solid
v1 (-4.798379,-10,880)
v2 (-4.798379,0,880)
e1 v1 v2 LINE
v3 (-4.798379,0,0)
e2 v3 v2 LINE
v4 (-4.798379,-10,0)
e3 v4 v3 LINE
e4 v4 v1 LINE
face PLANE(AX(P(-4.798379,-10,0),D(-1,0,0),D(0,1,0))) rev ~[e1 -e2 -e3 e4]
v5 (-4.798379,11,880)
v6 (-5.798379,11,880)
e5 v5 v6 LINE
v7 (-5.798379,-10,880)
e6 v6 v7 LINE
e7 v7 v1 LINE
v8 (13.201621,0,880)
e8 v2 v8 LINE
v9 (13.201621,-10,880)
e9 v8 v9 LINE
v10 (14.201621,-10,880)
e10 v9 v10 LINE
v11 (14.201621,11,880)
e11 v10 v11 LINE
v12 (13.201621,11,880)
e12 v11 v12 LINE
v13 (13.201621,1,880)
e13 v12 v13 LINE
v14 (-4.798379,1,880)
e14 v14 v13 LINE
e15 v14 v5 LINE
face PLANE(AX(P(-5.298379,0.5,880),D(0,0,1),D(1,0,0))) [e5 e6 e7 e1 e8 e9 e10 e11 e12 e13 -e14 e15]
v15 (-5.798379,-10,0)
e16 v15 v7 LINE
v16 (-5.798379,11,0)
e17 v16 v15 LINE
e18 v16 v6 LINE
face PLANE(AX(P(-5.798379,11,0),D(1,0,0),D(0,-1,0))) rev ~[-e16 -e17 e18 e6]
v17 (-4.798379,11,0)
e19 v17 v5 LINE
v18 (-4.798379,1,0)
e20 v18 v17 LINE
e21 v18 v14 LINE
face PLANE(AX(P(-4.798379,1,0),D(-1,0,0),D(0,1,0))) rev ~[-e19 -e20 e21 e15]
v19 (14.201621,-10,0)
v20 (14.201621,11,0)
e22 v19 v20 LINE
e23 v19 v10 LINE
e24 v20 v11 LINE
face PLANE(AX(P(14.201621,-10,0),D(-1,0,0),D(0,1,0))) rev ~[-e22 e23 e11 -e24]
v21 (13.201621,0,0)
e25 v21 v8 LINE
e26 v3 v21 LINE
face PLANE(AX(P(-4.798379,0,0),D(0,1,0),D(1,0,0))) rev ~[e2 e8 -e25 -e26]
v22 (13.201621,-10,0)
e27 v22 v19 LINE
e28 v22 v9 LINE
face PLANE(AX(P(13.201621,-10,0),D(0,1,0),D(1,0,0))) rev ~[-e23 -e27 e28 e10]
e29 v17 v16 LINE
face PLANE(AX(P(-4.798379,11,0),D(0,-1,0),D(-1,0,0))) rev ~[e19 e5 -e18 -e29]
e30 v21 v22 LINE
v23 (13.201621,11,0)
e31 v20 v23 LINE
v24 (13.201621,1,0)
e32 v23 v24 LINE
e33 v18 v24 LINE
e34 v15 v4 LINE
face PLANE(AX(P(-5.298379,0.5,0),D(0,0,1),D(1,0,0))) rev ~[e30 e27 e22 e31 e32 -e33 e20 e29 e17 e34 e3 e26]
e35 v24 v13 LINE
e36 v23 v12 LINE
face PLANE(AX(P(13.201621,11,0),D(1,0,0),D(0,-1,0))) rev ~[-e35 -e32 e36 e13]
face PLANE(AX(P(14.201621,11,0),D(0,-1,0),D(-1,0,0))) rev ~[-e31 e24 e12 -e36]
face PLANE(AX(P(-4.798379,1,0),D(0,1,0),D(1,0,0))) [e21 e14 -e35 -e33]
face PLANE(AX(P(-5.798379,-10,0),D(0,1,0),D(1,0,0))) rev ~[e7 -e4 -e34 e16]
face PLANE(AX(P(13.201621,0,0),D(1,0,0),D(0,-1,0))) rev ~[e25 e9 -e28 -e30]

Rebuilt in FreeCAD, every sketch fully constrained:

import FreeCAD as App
import Part
import Sketcher
from FreeCAD import Vector
Q = App.Units.Quantity

doc = App.newDocument("Part")
body = doc.addObject("PartDesign::Body", "Body")

# Sketch on XY plane
sketch1 = body.newObject("Sketcher::SketchObject", "Sketch")
sketch1.AttachmentSupport = (doc.getObject("XY_Plane"), [""])
sketch1.MapMode = "FlatFace"
sketch1.addGeometry(Part.LineSegment(Vector(-4.8, 11, 0), Vector(-5.8, 11, 0)), False)
sketch1.addGeometry(Part.LineSegment(Vector(-5.8, 11, 0), Vector(-5.8, -10, 0)), False)
sketch1.addGeometry(Part.LineSegment(Vector(-5.8, -10, 0), Vector(-4.8, -10, 0)), False)
sketch1.addGeometry(Part.LineSegment(Vector(-4.8, -10, 0), Vector(-4.8, 0, 0)), False)
sketch1.addGeometry(Part.LineSegment(Vector(-4.8, 0, 0), Vector(13.2, 0, 0)), False)
sketch1.addGeometry(Part.LineSegment(Vector(13.2, 0, 0), Vector(13.2, -10, 0)), False)
sketch1.addGeometry(Part.LineSegment(Vector(13.2, -10, 0), Vector(14.2, -10, 0)), False)
sketch1.addGeometry(Part.LineSegment(Vector(14.2, -10, 0), Vector(14.2, 11, 0)), False)
sketch1.addGeometry(Part.LineSegment(Vector(14.2, 11, 0), Vector(13.2, 11, 0)), False)
sketch1.addGeometry(Part.LineSegment(Vector(13.2, 11, 0), Vector(13.2, 1, 0)), False)
sketch1.addGeometry(Part.LineSegment(Vector(13.2, 1, 0), Vector(-4.8, 1, 0)), False)
sketch1.addGeometry(Part.LineSegment(Vector(-4.8, 1, 0), Vector(-4.8, 11, 0)), False)
sketch1.addConstraint(Sketcher.Constraint("Coincident", 0, 2, 1, 1))
sketch1.addConstraint(Sketcher.Constraint("Coincident", 1, 2, 2, 1))
sketch1.addConstraint(Sketcher.Constraint("Coincident", 2, 2, 3, 1))
sketch1.addConstraint(Sketcher.Constraint("Coincident", 3, 2, 4, 1))
sketch1.addConstraint(Sketcher.Constraint("Coincident", 4, 2, 5, 1))
sketch1.addConstraint(Sketcher.Constraint("Coincident", 5, 2, 6, 1))
sketch1.addConstraint(Sketcher.Constraint("Coincident", 6, 2, 7, 1))
sketch1.addConstraint(Sketcher.Constraint("Coincident", 7, 2, 8, 1))
sketch1.addConstraint(Sketcher.Constraint("Coincident", 8, 2, 9, 1))
sketch1.addConstraint(Sketcher.Constraint("Coincident", 9, 2, 10, 1))
sketch1.addConstraint(Sketcher.Constraint("Coincident", 10, 2, 11, 1))
sketch1.addConstraint(Sketcher.Constraint("Coincident", 11, 2, 0, 1))
sketch1.addConstraint(Sketcher.Constraint("Horizontal", 0))
sketch1.addConstraint(Sketcher.Constraint("Vertical", 1))
sketch1.addConstraint(Sketcher.Constraint("Horizontal", 2))
sketch1.addConstraint(Sketcher.Constraint("Vertical", 3))
sketch1.addConstraint(Sketcher.Constraint("Horizontal", 4))
sketch1.addConstraint(Sketcher.Constraint("Vertical", 5))
sketch1.addConstraint(Sketcher.Constraint("Horizontal", 6))
sketch1.addConstraint(Sketcher.Constraint("Vertical", 7))
sketch1.addConstraint(Sketcher.Constraint("Horizontal", 8))
sketch1.addConstraint(Sketcher.Constraint("Vertical", 9))
sketch1.addConstraint(Sketcher.Constraint("Horizontal", 10))
sketch1.addConstraint(Sketcher.Constraint("Vertical", 11))
sketch1.addConstraint(Sketcher.Constraint("PointOnObject", 3, 2, -1))
sketch1.addConstraint(Sketcher.Constraint("Horizontal", 2, 2, 5, 2))
sketch1.addConstraint(Sketcher.Constraint("Horizontal", 0, 2, 7, 2))
sketch1.addConstraint(Sketcher.Constraint("Vertical", 5, 2, 8, 2))
sketch1.addConstraint(Sketcher.Constraint("Vertical", 3, 2, 10, 2))
sketch1.addConstraint(Sketcher.Constraint("Equal", 2, 6))
sketch1.addConstraint(Sketcher.Constraint("Equal", 5, 9))
sketch1.addConstraint(Sketcher.Constraint("DistanceX", 0, 2, 0, 1, Q("1 mm")))
sketch1.addConstraint(Sketcher.Constraint("DistanceX", 4, 1, 4, 2, Q("18 mm")))
sketch1.addConstraint(Sketcher.Constraint("DistanceY", 1, 2, 1, 1, Q("21 mm")))
sketch1.addConstraint(Sketcher.Constraint("DistanceY", 3, 1, 3, 2, Q("10 mm")))
sketch1.addConstraint(Sketcher.Constraint("DistanceX", 0, 2, -1, 1, Q("5.798379 mm")))
pad1 = body.newObject("PartDesign::Pad", "Pad")
pad1.Profile = sketch1
pad1.Length = 880

doc.recompute()
